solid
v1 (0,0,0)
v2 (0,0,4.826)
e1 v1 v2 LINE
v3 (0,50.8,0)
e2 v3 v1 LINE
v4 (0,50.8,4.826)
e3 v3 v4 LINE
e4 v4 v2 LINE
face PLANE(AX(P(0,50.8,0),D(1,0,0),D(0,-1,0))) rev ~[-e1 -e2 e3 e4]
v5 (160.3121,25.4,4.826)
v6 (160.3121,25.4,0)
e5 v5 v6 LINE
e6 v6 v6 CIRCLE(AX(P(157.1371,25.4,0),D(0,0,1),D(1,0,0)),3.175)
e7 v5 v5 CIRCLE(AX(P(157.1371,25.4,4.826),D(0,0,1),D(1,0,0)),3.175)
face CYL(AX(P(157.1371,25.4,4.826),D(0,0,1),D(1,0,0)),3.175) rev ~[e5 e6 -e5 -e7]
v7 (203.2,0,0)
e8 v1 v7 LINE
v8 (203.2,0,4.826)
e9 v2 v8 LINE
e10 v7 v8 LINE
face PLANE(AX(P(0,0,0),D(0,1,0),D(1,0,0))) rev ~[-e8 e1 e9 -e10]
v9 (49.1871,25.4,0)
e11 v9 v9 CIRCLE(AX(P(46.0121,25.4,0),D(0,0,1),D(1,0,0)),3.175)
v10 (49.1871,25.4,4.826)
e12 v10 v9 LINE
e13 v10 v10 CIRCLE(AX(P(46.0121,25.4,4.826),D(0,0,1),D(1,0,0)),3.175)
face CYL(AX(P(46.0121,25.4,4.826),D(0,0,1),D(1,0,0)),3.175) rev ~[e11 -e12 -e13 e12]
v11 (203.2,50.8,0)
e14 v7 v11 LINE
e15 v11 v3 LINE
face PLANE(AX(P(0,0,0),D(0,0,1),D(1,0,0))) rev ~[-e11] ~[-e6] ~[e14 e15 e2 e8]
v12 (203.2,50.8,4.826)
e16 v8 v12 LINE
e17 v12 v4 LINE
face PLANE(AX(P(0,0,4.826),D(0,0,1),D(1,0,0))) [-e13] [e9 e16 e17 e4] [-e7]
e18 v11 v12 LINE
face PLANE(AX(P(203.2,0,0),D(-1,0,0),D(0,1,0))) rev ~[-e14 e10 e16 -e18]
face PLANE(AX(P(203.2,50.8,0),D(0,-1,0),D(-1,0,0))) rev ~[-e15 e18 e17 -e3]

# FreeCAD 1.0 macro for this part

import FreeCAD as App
import Part
import Sketcher

V = App.Vector
Q = App.Units.Quantity

doc = App.newDocument("Part")
body = doc.addObject("PartDesign::Body", "Body")

# Sketch on XY plane
sketch1 = body.newObject("Sketcher::SketchObject", "Sketch")
sketch1.AttachmentSupport = (doc.getObject("XY_Plane"), [""])
sketch1.MapMode = "FlatFace"
sketch1.addGeometry(Part.LineSegment(V(0, 50.8, 0), V(0, 0, 0)), False)
sketch1.addGeometry(Part.LineSegment(V(0, 0, 0), V(203.2, 0, 0)), False)
sketch1.addGeometry(Part.LineSegment(V(203.2, 0, 0), V(203.2, 50.8, 0)), False)
sketch1.addGeometry(Part.LineSegment(V(203.2, 50.8, 0), V(0, 50.8, 0)), False)
sketch1.addConstraint(Sketcher.Constraint("Coincident", 0, 2, 1, 1))
sketch1.addConstraint(Sketcher.Constraint("Coincident", 1, 2, 2, 1))
sketch1.addConstraint(Sketcher.Constraint("Coincident", 2, 2, 3, 1))
sketch1.addConstraint(Sketcher.Constraint("Coincident", 3, 2, 0, 1))
sketch1.addConstraint(Sketcher.Constraint("Vertical", 0))
sketch1.addConstraint(Sketcher.Constraint("Horizontal", 1))
sketch1.addConstraint(Sketcher.Constraint("Vertical", 2))
sketch1.addConstraint(Sketcher.Constraint("Horizontal", 3))
sketch1.addConstraint(Sketcher.Constraint("Coincident", 0, 2, -1, 1))
sketch1.addConstraint(Sketcher.Constraint("DistanceX", 1, 1, 1, 2, Q("8 in")))
sketch1.addConstraint(Sketcher.Constraint("DistanceY", 0, 2, 0, 1, Q("2 in")))
pad1 = body.newObject("PartDesign::Pad", "Pad")
pad1.Profile = sketch1
pad1.Length = Q("0.19 in")

# Sketch on XY plane
sketch2 = body.newObject("Sketcher::SketchObject", "Sketch001")
sketch2.AttachmentSupport = (doc.getObject("XY_Plane"), [""])
sketch2.MapMode = "FlatFace"
sketch2.AttachmentOffset = App.Placement(V(0, 0, 0.19 * 25.4), App.Rotation())
sketch2.addGeometry(Part.Circle(V(46.0121, 25.4, 0), V(0, 0, 1), 3.175), False)
sketch2.addGeometry(Part.Circle(V(157.1371, 25.4, 0), V(0, 0, 1), 3.175), False)
sketch2.addConstraint(Sketcher.Constraint("Equal", 0, 1))
sketch2.addConstraint(Sketcher.Constraint("Horizontal", 0, 3, 1, 3))
sketch2.addConstraint(Sketcher.Constraint("Diameter", 0, Q("0.25 in")))
sketch2.addConstraint(Sketcher.Constraint("DistanceY", -1, 1, 0, 3, Q("1 in")))
sketch2.addConstraint(Sketcher.Constraint("DistanceX", 0, 3, 1, 3, Q("4.375 in")))
sketch2.addConstraint(Sketcher.Constraint("DistanceX", -1, 1, 0, 3, Q("1.8115 in")))
pocket1 = body.newObject("PartDesign::Pocket", "Pocket")
pocket1.Profile = sketch2
pocket1.Length = Q("0.25 in")

doc.recompute()
